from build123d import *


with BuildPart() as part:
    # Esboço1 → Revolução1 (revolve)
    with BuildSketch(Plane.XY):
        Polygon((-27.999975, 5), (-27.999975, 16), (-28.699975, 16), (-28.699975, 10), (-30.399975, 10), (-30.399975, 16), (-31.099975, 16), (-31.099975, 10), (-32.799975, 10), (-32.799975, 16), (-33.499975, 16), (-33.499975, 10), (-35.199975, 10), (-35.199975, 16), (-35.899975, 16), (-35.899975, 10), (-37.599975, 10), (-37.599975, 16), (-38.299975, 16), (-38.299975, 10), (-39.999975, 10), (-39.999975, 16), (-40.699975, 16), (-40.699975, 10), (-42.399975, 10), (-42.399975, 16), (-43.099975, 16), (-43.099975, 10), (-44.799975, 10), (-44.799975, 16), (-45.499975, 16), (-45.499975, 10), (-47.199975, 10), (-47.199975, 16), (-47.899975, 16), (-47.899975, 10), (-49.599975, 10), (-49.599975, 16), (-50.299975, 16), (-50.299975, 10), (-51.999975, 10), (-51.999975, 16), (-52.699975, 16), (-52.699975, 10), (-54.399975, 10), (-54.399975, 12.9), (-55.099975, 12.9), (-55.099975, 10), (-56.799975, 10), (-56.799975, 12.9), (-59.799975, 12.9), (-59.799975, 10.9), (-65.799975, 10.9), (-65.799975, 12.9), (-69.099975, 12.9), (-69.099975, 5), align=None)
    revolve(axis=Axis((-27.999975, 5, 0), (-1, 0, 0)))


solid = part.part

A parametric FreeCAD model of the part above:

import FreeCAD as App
import Part
import Sketcher

V = App.Vector

doc = App.newDocument("Part")
params = doc.addObject("Spreadsheet::Sheet", "Params")
for row, (alias, value) in enumerate([
    ("sketch1_width", "3 mm"),
    ("sketch1_width2", "6 mm"),
    ("sketch1_height", "11 mm"),
    ("sketch1_height2", "2 mm"),
    ("sketch1_width3", "0.7 mm"),
    ("revolution_angle", "360 deg"),
], start=1):
    params.set(f"A{row}", alias)
    params.set(f"B{row}", "=" + value)
    params.setAlias(f"B{row}", alias)

body = doc.addObject("PartDesign::Body", "Body")

sketch1 = doc.addObject("Sketcher::SketchObject", "Sketch")
body.addObject(sketch1)
sketch1.AttachmentSupport = (doc.XY_Plane, [""])
sketch1.MapMode = "FlatFace"
sketch1.addGeometry(Part.LineSegment(V(-27.999975, 5, 0), V(-27.999975, 16, 0)), False)
sketch1.addGeometry(Part.LineSegment(V(-27.999975, 16, 0), V(-28.699975, 16, 0)), False)
sketch1.addGeometry(Part.LineSegment(V(-28.699975, 16, 0), V(-28.699975, 10, 0)), False)
sketch1.addGeometry(Part.LineSegment(V(-28.699975, 10, 0), V(-30.399975, 10, 0)), False)
sketch1.addGeometry(Part.LineSegment(V(-30.399975, 10, 0), V(-30.399975, 16, 0)), False)
sketch1.addGeometry(Part.LineSegment(V(-30.399975, 16, 0), V(-31.099975, 16, 0)), False)
sketch1.addGeometry(Part.LineSegment(V(-31.099975, 16, 0), V(-31.099975, 10, 0)), False)
sketch1.addGeometry(Part.LineSegment(V(-31.099975, 10, 0), V(-32.799975, 10, 0)), False)
sketch1.addGeometry(Part.LineSegment(V(-32.799975, 10, 0), V(-32.799975, 16, 0)), False)
sketch1.addGeometry(Part.LineSegment(V(-32.799975, 16, 0), V(-33.499975, 16, 0)), False)
sketch1.addGeometry(Part.LineSegment(V(-33.499975, 16, 0), V(-33.499975, 10, 0)), False)
sketch1.addGeometry(Part.LineSegment(V(-33.499975, 10, 0), V(-35.199975, 10, 0)), False)
sketch1.addGeometry(Part.LineSegment(V(-35.199975, 10, 0), V(-35.199975, 16, 0)), False)
sketch1.addGeometry(Part.LineSegment(V(-35.199975, 16, 0), V(-35.899975, 16, 0)), False)
sketch1.addGeometry(Part.LineSegment(V(-35.899975, 16, 0), V(-35.899975, 10, 0)), False)
sketch1.addGeometry(Part.LineSegment(V(-35.899975, 10, 0), V(-37.599975, 10, 0)), False)
sketch1.addGeometry(Part.LineSegment(V(-37.599975, 10, 0), V(-37.599975, 16, 0)), False)
sketch1.addGeometry(Part.LineSegment(V(-37.599975, 16, 0), V(-38.299975, 16, 0)), False)
sketch1.addGeometry(Part.LineSegment(V(-38.299975, 16, 0), V(-38.299975, 10, 0)), False)
sketch1.addGeometry(Part.LineSegment(V(-38.299975, 10, 0), V(-39.999975, 10, 0)), False)
sketch1.addGeometry(Part.LineSegment(V(-39.999975, 10, 0), V(-39.999975, 16, 0)), False)
sketch1.addGeometry(Part.LineSegment(V(-39.999975, 16, 0), V(-40.699975, 16, 0)), False)
sketch1.addGeometry(Part.LineSegment(V(-40.699975, 16, 0), V(-40.699975, 10, 0)), False)
sketch1.addGeometry(Part.LineSegment(V(-40.699975, 10, 0), V(-42.399975, 10, 0)), False)
sketch1.addGeometry(Part.LineSegment(V(-42.399975, 10, 0), V(-42.399975, 16, 0)), False)
sketch1.addGeometry(Part.LineSegment(V(-42.399975, 16, 0), V(-43.099975, 16, 0)), False)
sketch1.addGeometry(Part.LineSegment(V(-43.099975, 16, 0), V(-43.099975, 10, 0)), False)
sketch1.addGeometry(Part.LineSegment(V(-43.099975, 10, 0), V(-44.799975, 10, 0)), False)
sketch1.addGeometry(Part.LineSegment(V(-44.799975, 10, 0), V(-44.799975, 16, 0)), False)
sketch1.addGeometry(Part.LineSegment(V(-44.799975, 16, 0), V(-45.499975, 16, 0)), False)
sketch1.addGeometry(Part.LineSegment(V(-45.499975, 16, 0), V(-45.499975, 10, 0)), False)
sketch1.addGeometry(Part.LineSegment(V(-45.499975, 10, 0), V(-47.199975, 10, 0)), False)
sketch1.addGeometry(Part.LineSegment(V(-47.199975, 10, 0), V(-47.199975, 16, 0)), False)
sketch1.addGeometry(Part.LineSegment(V(-47.199975, 16, 0), V(-47.899975, 16, 0)), False)
sketch1.addGeometry(Part.LineSegment(V(-47.899975, 16, 0), V(-47.899975, 10, 0)), False)
sketch1.addGeometry(Part.LineSegment(V(-47.899975, 10, 0), V(-49.599975, 10, 0)), False)
sketch1.addGeometry(Part.LineSegment(V(-49.599975, 10, 0), V(-49.599975, 16, 0)), False)
sketch1.addGeometry(Part.LineSegment(V(-49.599975, 16, 0), V(-50.299975, 16, 0)), False)
sketch1.addGeometry(Part.LineSegment(V(-50.299975, 16, 0), V(-50.299975, 10, 0)), False)
sketch1.addGeometry(Part.LineSegment(V(-50.299975, 10, 0), V(-51.999975, 10, 0)), False)
sketch1.addGeometry(Part.LineSegment(V(-51.999975, 10, 0), V(-51.999975, 16, 0)), False)
sketch1.addGeometry(Part.LineSegment(V(-51.999975, 16, 0), V(-52.699975, 16, 0)), False)
sketch1.addGeometry(Part.LineSegment(V(-52.699975, 16, 0), V(-52.699975, 10, 0)), False)
sketch1.addGeometry(Part.LineSegment(V(-52.699975, 10, 0), V(-54.399975, 10, 0)), False)
sketch1.addGeometry(Part.LineSegment(V(-54.399975, 10, 0), V(-54.399975, 12.9, 0)), False)
sketch1.addGeometry(Part.LineSegment(V(-54.399975, 12.9, 0), V(-55.099975, 12.9, 0)), False)
sketch1.addGeometry(Part.LineSegment(V(-55.099975, 12.9, 0), V(-55.099975, 10, 0)), False)
sketch1.addGeometry(Part.LineSegment(V(-55.099975, 10, 0), V(-56.799975, 10, 0)), False)
sketch1.addGeometry(Part.LineSegment(V(-56.799975, 10, 0), V(-56.799975, 12.9, 0)), False)
sketch1.addGeometry(Part.LineSegment(V(-56.799975, 12.9, 0), V(-59.799975, 12.9, 0)), False)
sketch1.addGeometry(Part.LineSegment(V(-59.799975, 12.9, 0), V(-59.799975, 10.9, 0)), False)
sketch1.addGeometry(Part.LineSegment(V(-59.799975, 10.9, 0), V(-65.799975, 10.9, 0)), False)
sketch1.addGeometry(Part.LineSegment(V(-65.799975, 10.9, 0), V(-65.799975, 12.9, 0)), False)
sketch1.addGeometry(Part.LineSegment(V(-65.799975, 12.9, 0), V(-69.099975, 12.9, 0)), False)
sketch1.addGeometry(Part.LineSegment(V(-69.099975, 12.9, 0), V(-69.099975, 5, 0)), False)
sketch1.addGeometry(Part.LineSegment(V(-69.099975, 5, 0), V(-27.999975, 5, 0)), False)
sketch1.addGeometry(Part.LineSegment(V(-27.999975, 5, 0), V(-69.099975, 5, 0)), True)
sketch1.addConstraint(Sketcher.Constraint("Coincident", 0, 2, 1, 1))
sketch1.addConstraint(Sketcher.Constraint("Coincident", 1, 2, 2, 1))
sketch1.addConstraint(Sketcher.Constraint("Coincident", 2, 2, 3, 1))
sketch1.addConstraint(Sketcher.Constraint("Coincident", 3, 2, 4, 1))
sketch1.addConstraint(Sketcher.Constraint("Coincident", 4, 2, 5, 1))
sketch1.addConstraint(Sketcher.Constraint("Coincident", 5, 2, 6, 1))
sketch1.addConstraint(Sketcher.Constraint("Coincident", 6, 2, 7, 1))
sketch1.addConstraint(Sketcher.Constraint("Coincident", 7, 2, 8, 1))
sketch1.addConstraint(Sketcher.Constraint("Coincident", 8, 2, 9, 1))
sketch1.addConstraint(Sketcher.Constraint("Coincident", 9, 2, 10, 1))
sketch1.addConstraint(Sketcher.Constraint("Coincident", 10, 2, 11, 1))
sketch1.addConstraint(Sketcher.Constraint("Coincident", 11, 2, 12, 1))
sketch1.addConstraint(Sketcher.Constraint("Coincident", 12, 2, 13, 1))
sketch1.addConstraint(Sketcher.Constraint("Coincident", 13, 2, 14, 1))
sketch1.addConstraint(Sketcher.Constraint("Coincident", 14, 2, 15, 1))
sketch1.addConstraint(Sketcher.Constraint("Coincident", 15, 2, 16, 1))
sketch1.addConstraint(Sketcher.Constraint("Coincident", 16, 2, 17, 1))
sketch1.addConstraint(Sketcher.Constraint("Coincident", 17, 2, 18, 1))
sketch1.addConstraint(Sketcher.Constraint("Coincident", 18, 2, 19, 1))
sketch1.addConstraint(Sketcher.Constraint("Coincident", 19, 2, 20, 1))
sketch1.addConstraint(Sketcher.Constraint("Coincident", 20, 2, 21, 1))
sketch1.addConstraint(Sketcher.Constraint("Coincident", 21, 2, 22, 1))
sketch1.addConstraint(Sketcher.Constraint("Coincident", 22, 2, 23, 1))
sketch1.addConstraint(Sketcher.Constraint("Coincident", 23, 2, 24, 1))
sketch1.addConstraint(Sketcher.Constraint("Coincident", 24, 2, 25, 1))
sketch1.addConstraint(Sketcher.Constraint("Coincident", 25, 2, 26, 1))
sketch1.addConstraint(Sketcher.Constraint("Coincident", 26, 2, 27, 1))
sketch1.addConstraint(Sketcher.Constraint("Coincident", 27, 2, 28, 1))
sketch1.addConstraint(Sketcher.Constraint("Coincident", 28, 2, 29, 1))
sketch1.addConstraint(Sketcher.Constraint("Coincident", 29, 2, 30, 1))
sketch1.addConstraint(Sketcher.Constraint("Coincident", 30, 2, 31, 1))
sketch1.addConstraint(Sketcher.Constraint("Coincident", 31, 2, 32, 1))
sketch1.addConstraint(Sketcher.Constraint("Coincident", 32, 2, 33, 1))
sketch1.addConstraint(Sketcher.Constraint("Coincident", 33, 2, 34, 1))
sketch1.addConstraint(Sketcher.Constraint("Coincident", 34, 2, 35, 1))
sketch1.addConstraint(Sketcher.Constraint("Coincident", 35, 2, 36, 1))
sketch1.addConstraint(Sketcher.Constraint("Coincident", 36, 2, 37, 1))
sketch1.addConstraint(Sketcher.Constraint("Coincident", 37, 2, 38, 1))
sketch1.addConstraint(Sketcher.Constraint("Coincident", 38, 2, 39, 1))
sketch1.addConstraint(Sketcher.Constraint("Coincident", 39, 2, 40, 1))
sketch1.addConstraint(Sketcher.Constraint("Coincident", 40, 2, 41, 1))
sketch1.addConstraint(Sketcher.Constraint("Coincident", 41, 2, 42, 1))
sketch1.addConstraint(Sketcher.Constraint("Coincident", 42, 2, 43, 1))
sketch1.addConstraint(Sketcher.Constraint("Coincident", 43, 2, 44, 1))
sketch1.addConstraint(Sketcher.Constraint("Coincident", 44, 2, 45, 1))
sketch1.addConstraint(Sketcher.Constraint("Coincident", 45, 2, 46, 1))
sketch1.addConstraint(Sketcher.Constraint("Coincident", 46, 2, 47, 1))
sketch1.addConstraint(Sketcher.Constraint("Coincident", 47, 2, 48, 1))
sketch1.addConstraint(Sketcher.Constraint("Coincident", 48, 2, 49, 1))
sketch1.addConstraint(Sketcher.Constraint("Coincident", 49, 2, 50, 1))
sketch1.addConstraint(Sketcher.Constraint("Coincident", 50, 2, 51, 1))
sketch1.addConstraint(Sketcher.Constraint("Coincident", 51, 2, 52, 1))
sketch1.addConstraint(Sketcher.Constraint("Coincident", 52, 2, 53, 1))
sketch1.addConstraint(Sketcher.Constraint("Coincident", 53, 2, 54, 1))
sketch1.addConstraint(Sketcher.Constraint("Coincident", 54, 2, 55, 1))
sketch1.addConstraint(Sketcher.Constraint("Coincident", 55, 2, 0, 1))
sketch1.addConstraint(Sketcher.Constraint("Vertical", 0))
sketch1.addConstraint(Sketcher.Constraint("Horizontal", 1))
sketch1.addConstraint(Sketcher.Constraint("Vertical", 2))
sketch1.addConstraint(Sketcher.Constraint("Horizontal", 3))
sketch1.addConstraint(Sketcher.Constraint("Vertical", 4))
sketch1.addConstraint(Sketcher.Constraint("Horizontal", 5))
sketch1.addConstraint(Sketcher.Constraint("Vertical", 6))
sketch1.addConstraint(Sketcher.Constraint("Horizontal", 7))
sketch1.addConstraint(Sketcher.Constraint("Vertical", 8))
sketch1.addConstraint(Sketcher.Constraint("Horizontal", 9))
sketch1.addConstraint(Sketcher.Constraint("Vertical", 10))
sketch1.addConstraint(Sketcher.Constraint("Horizontal", 11))
sketch1.addConstraint(Sketcher.Constraint("Vertical", 12))
sketch1.addConstraint(Sketcher.Constraint("Horizontal", 13))
sketch1.addConstraint(Sketcher.Constraint("Vertical", 14))
sketch1.addConstraint(Sketcher.Constraint("Horizontal", 15))
sketch1.addConstraint(Sketcher.Constraint("Vertical", 16))
sketch1.addConstraint(Sketcher.Constraint("Horizontal", 17))
sketch1.addConstraint(Sketcher.Constraint("Vertical", 18))
sketch1.addConstraint(Sketcher.Constraint("Horizontal", 19))
sketch1.addConstraint(Sketcher.Constraint("Vertical", 20))
sketch1.addConstraint(Sketcher.Constraint("Horizontal", 21))
sketch1.addConstraint(Sketcher.Constraint("Vertical", 22))
sketch1.addConstraint(Sketcher.Constraint("Horizontal", 23))
sketch1.addConstraint(Sketcher.Constraint("Vertical", 24))
sketch1.addConstraint(Sketcher.Constraint("Horizontal", 25))
sketch1.addConstraint(Sketcher.Constraint("Vertical", 26))
sketch1.addConstraint(Sketcher.Constraint("Horizontal", 27))
sketch1.addConstraint(Sketcher.Constraint("Vertical", 28))
sketch1.addConstraint(Sketcher.Constraint("Horizontal", 29))
sketch1.addConstraint(Sketcher.Constraint("Vertical", 30))
sketch1.addConstraint(Sketcher.Constraint("Horizontal", 31))
sketch1.addConstraint(Sketcher.Constraint("Vertical", 32))
sketch1.addConstraint(Sketcher.Constraint("Horizontal", 33))
sketch1.addConstraint(Sketcher.Constraint("Vertical", 34))
sketch1.addConstraint(Sketcher.Constraint("Horizontal", 35))
sketch1.addConstraint(Sketcher.Constraint("Vertical", 36))
sketch1.addConstraint(Sketcher.Constraint("Horizontal", 37))
sketch1.addConstraint(Sketcher.Constraint("Vertical", 38))
sketch1.addConstraint(Sketcher.Constraint("Horizontal", 39))
sketch1.addConstraint(Sketcher.Constraint("Vertical", 40))
sketch1.addConstraint(Sketcher.Constraint("Horizontal", 41))
sketch1.addConstraint(Sketcher.Constraint("Vertical", 42))
sketch1.addConstraint(Sketcher.Constraint("Horizontal", 43))
sketch1.addConstraint(Sketcher.Constraint("Vertical", 44))
sketch1.addConstraint(Sketcher.Constraint("Horizontal", 45))
sketch1.addConstraint(Sketcher.Constraint("Vertical", 46))
sketch1.addConstraint(Sketcher.Constraint("Horizontal", 47))
sketch1.addConstraint(Sketcher.Constraint("Vertical", 48))
sketch1.addConstraint(Sketcher.Constraint("Horizontal", 49))
sketch1.addConstraint(Sketcher.Constraint("Vertical", 50))
sketch1.addConstraint(Sketcher.Constraint("Horizontal", 51))
sketch1.addConstraint(Sketcher.Constraint("Vertical", 52))
sketch1.addConstraint(Sketcher.Constraint("Horizontal", 53))
sketch1.addConstraint(Sketcher.Constraint("Vertical", 54))
sketch1.addConstraint(Sketcher.Constraint("Horizontal", 55))
sketch1.addConstraint(Sketcher.Constraint("Horizontal", 56))
sketch1.addConstraint(Sketcher.Constraint("Coincident", 56, 1, 55, 2))
sketch1.addConstraint(Sketcher.Constraint("Horizontal", 1, 2, 4, 2))
sketch1.addConstraint(Sketcher.Constraint("Horizontal", 3, 2, 6, 2))
sketch1.addConstraint(Sketcher.Constraint("Horizontal", 5, 2, 8, 2))
sketch1.addConstraint(Sketcher.Constraint("Horizontal", 7, 2, 10, 2))
sketch1.addConstraint(Sketcher.Constraint("Horizontal", 9, 2, 12, 2))
sketch1.addConstraint(Sketcher.Constraint("Horizontal", 11, 2, 14, 2))
sketch1.addConstraint(Sketcher.Constraint("Horizontal", 13, 2, 16, 2))
sketch1.addConstraint(Sketcher.Constraint("Horizontal", 15, 2, 18, 2))
sketch1.addConstraint(Sketcher.Constraint("Horizontal", 17, 2, 20, 2))
sketch1.addConstraint(Sketcher.Constraint("Horizontal", 19, 2, 22, 2))
sketch1.addConstraint(Sketcher.Constraint("Horizontal", 21, 2, 24, 2))
sketch1.addConstraint(Sketcher.Constraint("Horizontal", 23, 2, 26, 2))
sketch1.addConstraint(Sketcher.Constraint("Horizontal", 25, 2, 28, 2))
sketch1.addConstraint(Sketcher.Constraint("Horizontal", 27, 2, 30, 2))
sketch1.addConstraint(Sketcher.Constraint("Horizontal", 29, 2, 32, 2))
sketch1.addConstraint(Sketcher.Constraint("Horizontal", 31, 2, 34, 2))
sketch1.addConstraint(Sketcher.Constraint("Horizontal", 33, 2, 36, 2))
sketch1.addConstraint(Sketcher.Constraint("Horizontal", 35, 2, 38, 2))
sketch1.addConstraint(Sketcher.Constraint("Horizontal", 37, 2, 40, 2))
sketch1.addConstraint(Sketcher.Constraint("Horizontal", 39, 2, 42, 2))
sketch1.addConstraint(Sketcher.Constraint("Horizontal", 43, 2, 46, 2))
sketch1.addConstraint(Sketcher.Constraint("Horizontal", 45, 2, 48, 2))
sketch1.addConstraint(Sketcher.Constraint("Horizontal", 49, 2, 52, 2))
sketch1.addConstraint(Sketcher.Constraint("Vertical", 53, 2, 56, 2))
sketch1.addConstraint(Sketcher.Constraint("Equal", 1, 5))
sketch1.addConstraint(Sketcher.Constraint("Equal", 3, 7))
sketch1.addConstraint(Sketcher.Constraint("Equal", 5, 9))
sketch1.addConstraint(Sketcher.Constraint("Equal", 7, 11))
sketch1.addConstraint(Sketcher.Constraint("Equal", 9, 13))
sketch1.addConstraint(Sketcher.Constraint("Equal", 11, 15))
sketch1.addConstraint(Sketcher.Constraint("Equal", 13, 17))
sketch1.addConstraint(Sketcher.Constraint("Equal", 15, 19))
sketch1.addConstraint(Sketcher.Constraint("Equal", 17, 21))
sketch1.addConstraint(Sketcher.Constraint("Equal", 19, 23))
sketch1.addConstraint(Sketcher.Constraint("Equal", 21, 25))
sketch1.addConstraint(Sketcher.Constraint("Equal", 23, 27))
sketch1.addConstraint(Sketcher.Constraint("Equal", 25, 29))
sketch1.addConstraint(Sketcher.Constraint("Equal", 27, 31))
sketch1.addConstraint(Sketcher.Constraint("Equal", 29, 33))
sketch1.addConstraint(Sketcher.Constraint("Equal", 31, 35))
sketch1.addConstraint(Sketcher.Constraint("Equal", 33, 37))
sketch1.addConstraint(Sketcher.Constraint("Equal", 35, 39))
sketch1.addConstraint(Sketcher.Constraint("Equal", 37, 41))
sketch1.addConstraint(Sketcher.Constraint("Equal", 39, 43))
sketch1.addConstraint(Sketcher.Constraint("Equal", 41, 45))
sketch1.addConstraint(Sketcher.Constraint("Equal", 43, 47))
sketch1.addConstraint(Sketcher.Constraint("Equal", 51, 2))
sketch1.addConstraint(Sketcher.Constraint("DistanceX", 49, 2, 49, 1, 3.0))
sketch1.addConstraint(Sketcher.Constraint("DistanceX", 51, 2, 51, 1, 6.0))
sketch1.addConstraint(Sketcher.Constraint("DistanceY", 0, 1, 0, 2, 11.0))
sketch1.addConstraint(Sketcher.Constraint("DistanceY", 50, 2, 50, 1, 2.0))
sketch1.addConstraint(Sketcher.Constraint("DistanceX", 1, 2, 1, 1, 0.7))
sketch1.addConstraint(Sketcher.Constraint("DistanceX", 3, 2, 3, 1, 1.7))
sketch1.addConstraint(Sketcher.Constraint("DistanceX", 53, 2, 53, 1, 3.3))
sketch1.addConstraint(Sketcher.Constraint("DistanceY", 44, 1, 44, 2, 2.9))
sketch1.addConstraint(Sketcher.Constraint("DistanceY", -1, 1, 0, 2, 16.0))
sketch1.addConstraint(Sketcher.Constraint("DistanceX", 0, 2, -1, 1, 27.999975))
sketch1.setExpression("Constraints[161]", "Params.sketch1_width")
sketch1.setExpression("Constraints[162]", "Params.sketch1_width2")
sketch1.setExpression("Constraints[163]", "Params.sketch1_height")
sketch1.setExpression("Constraints[164]", "Params.sketch1_height2")
sketch1.setExpression("Constraints[165]", "Params.sketch1_width3")
revolution = doc.addObject("PartDesign::Revolution", "Revolution")
body.addObject(revolution)
revolution.Profile = sketch1
revolution.ReferenceAxis = (sketch1, ["Axis0"])
revolution.setExpression("Angle", "Params.revolution_angle")

doc.recompute()
